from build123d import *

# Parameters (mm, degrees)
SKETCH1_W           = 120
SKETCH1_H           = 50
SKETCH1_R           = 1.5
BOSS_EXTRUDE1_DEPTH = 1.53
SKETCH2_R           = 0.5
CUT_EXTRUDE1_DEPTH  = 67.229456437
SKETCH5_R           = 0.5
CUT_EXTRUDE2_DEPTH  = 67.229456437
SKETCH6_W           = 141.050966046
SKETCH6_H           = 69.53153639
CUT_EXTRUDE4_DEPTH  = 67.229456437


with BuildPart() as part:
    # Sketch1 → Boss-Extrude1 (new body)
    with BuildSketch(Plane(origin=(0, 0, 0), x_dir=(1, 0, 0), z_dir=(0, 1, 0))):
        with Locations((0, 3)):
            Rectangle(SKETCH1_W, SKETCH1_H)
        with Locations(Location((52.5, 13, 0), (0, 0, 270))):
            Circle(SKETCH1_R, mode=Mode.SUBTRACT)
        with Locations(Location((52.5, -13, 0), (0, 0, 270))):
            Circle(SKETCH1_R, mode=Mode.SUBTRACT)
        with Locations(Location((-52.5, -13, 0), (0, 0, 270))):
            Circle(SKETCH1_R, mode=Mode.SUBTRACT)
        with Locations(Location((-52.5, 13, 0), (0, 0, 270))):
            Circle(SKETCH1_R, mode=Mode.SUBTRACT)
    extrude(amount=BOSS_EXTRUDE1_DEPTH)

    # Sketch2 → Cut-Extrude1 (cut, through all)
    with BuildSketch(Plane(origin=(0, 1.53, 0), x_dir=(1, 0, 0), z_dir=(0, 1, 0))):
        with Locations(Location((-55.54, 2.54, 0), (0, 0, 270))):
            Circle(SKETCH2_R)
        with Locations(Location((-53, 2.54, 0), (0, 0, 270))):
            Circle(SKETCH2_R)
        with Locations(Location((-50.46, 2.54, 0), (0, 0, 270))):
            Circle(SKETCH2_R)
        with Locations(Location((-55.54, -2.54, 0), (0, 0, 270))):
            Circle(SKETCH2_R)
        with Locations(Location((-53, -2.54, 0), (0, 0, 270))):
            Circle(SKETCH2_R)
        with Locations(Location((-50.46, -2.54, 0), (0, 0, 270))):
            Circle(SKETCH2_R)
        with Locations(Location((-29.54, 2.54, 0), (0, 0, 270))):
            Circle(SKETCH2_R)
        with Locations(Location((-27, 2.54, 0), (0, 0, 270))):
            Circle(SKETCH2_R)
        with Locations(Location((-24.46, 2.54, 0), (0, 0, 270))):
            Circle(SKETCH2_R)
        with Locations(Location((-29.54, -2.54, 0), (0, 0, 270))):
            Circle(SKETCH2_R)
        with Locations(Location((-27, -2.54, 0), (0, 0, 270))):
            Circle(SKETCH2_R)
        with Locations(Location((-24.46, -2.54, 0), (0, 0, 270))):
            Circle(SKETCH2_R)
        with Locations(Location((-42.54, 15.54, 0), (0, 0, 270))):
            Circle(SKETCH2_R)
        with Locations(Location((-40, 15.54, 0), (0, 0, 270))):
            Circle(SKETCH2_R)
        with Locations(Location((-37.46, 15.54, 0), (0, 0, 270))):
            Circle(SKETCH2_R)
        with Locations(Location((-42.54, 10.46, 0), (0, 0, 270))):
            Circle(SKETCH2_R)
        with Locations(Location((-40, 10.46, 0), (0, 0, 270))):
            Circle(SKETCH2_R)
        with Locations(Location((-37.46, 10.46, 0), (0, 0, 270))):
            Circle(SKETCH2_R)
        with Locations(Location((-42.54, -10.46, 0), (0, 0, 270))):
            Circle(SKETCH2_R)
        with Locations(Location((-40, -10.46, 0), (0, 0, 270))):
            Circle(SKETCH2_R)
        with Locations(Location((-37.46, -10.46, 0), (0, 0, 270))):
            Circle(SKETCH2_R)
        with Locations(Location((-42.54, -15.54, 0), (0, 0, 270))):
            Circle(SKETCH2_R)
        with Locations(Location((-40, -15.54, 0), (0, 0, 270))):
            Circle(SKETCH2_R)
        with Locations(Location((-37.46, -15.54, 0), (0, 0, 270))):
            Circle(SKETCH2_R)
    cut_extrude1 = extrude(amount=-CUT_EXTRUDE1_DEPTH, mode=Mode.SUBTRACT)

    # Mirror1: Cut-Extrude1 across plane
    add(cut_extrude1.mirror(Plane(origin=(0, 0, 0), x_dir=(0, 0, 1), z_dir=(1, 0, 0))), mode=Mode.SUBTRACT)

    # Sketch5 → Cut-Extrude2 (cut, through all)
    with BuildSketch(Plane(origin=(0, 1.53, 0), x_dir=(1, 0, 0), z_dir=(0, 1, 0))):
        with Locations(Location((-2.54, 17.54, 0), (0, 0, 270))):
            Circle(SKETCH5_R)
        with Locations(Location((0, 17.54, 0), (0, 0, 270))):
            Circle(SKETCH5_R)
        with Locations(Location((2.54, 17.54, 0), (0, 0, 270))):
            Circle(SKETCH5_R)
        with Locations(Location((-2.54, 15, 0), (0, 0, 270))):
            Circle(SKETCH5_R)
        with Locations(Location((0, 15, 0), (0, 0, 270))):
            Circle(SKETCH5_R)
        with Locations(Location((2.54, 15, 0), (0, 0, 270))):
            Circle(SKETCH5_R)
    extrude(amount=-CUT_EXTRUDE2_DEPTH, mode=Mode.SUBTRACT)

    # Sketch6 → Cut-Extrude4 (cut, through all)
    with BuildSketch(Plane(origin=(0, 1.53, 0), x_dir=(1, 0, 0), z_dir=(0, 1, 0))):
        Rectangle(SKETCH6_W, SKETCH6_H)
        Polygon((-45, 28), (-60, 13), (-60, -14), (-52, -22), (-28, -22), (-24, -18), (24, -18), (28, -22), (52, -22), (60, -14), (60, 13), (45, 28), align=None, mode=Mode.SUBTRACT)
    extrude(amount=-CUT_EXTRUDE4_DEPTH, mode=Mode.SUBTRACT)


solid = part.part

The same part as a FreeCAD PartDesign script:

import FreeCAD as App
import Part
import Sketcher

V = App.Vector


def add_polygon(sketch, points):
    """Adds a closed chain of lines whose ends are joined by coincident constraints."""
    first, n = sketch.GeometryCount, len(points)
    for a, b in zip(points, points[1:] + points[:1]):
        sketch.addGeometry(Part.LineSegment(App.Vector(*a, 0), App.Vector(*b, 0)), False)
    for i in range(n):
        sketch.addConstraint(Sketcher.Constraint("Coincident", first + i, 2, first + (i + 1) % n, 1))

doc = App.newDocument("Part")
body = doc.addObject("PartDesign::Body", "Body")

sketch1 = body.newObject("Sketcher::SketchObject", "Sketch")
sketch1.AttachmentSupport = (doc.getObject("XZ_Plane"), [""])
sketch1.MapMode = "FlatFace"
add_polygon(sketch1, [(-60, -28), (-60, 22), (60, 22), (60, -28)])
sketch1.addGeometry(Part.Circle(V(-52.5, 13, 0), V(0, 0, 1), 1.5), False)
sketch1.addGeometry(Part.Circle(V(52.5, 13, 0), V(0, 0, 1), 1.5), False)
sketch1.addGeometry(Part.Circle(V(-52.5, -13, 0), V(0, 0, 1), 1.5), False)
sketch1.addGeometry(Part.Circle(V(52.5, -13, 0), V(0, 0, 1), 1.5), False)
sketch1.addConstraint([
    Sketcher.Constraint("Vertical", 0),
    Sketcher.Constraint("Horizontal", 1),
    Sketcher.Constraint("Vertical", 2),
    Sketcher.Constraint("Horizontal", 3),
    Sketcher.Constraint("Equal", 4, 5),
    Sketcher.Constraint("Equal", 5, 6),
    Sketcher.Constraint("Equal", 6, 7),
    Sketcher.Constraint("Symmetric", 5, 3, 6, 3, -1, 1),
    Sketcher.Constraint("Symmetric", 4, 3, 7, 3, -1, 1),
    Sketcher.Constraint("Symmetric", 4, 3, 5, 3, -2),
    Sketcher.Constraint("Diameter", 4, 3.0),
    Sketcher.Constraint("DistanceX", 1, 1, 1, 2, 120.0),
    Sketcher.Constraint("DistanceY", 0, 1, 0, 2, 50.0),
    Sketcher.Constraint("DistanceY", -1, 1, 4, 3, 13.0),
    Sketcher.Constraint("DistanceX", 0, 2, -1, 1, 60.0),
    Sketcher.Constraint("DistanceY", -1, 1, 0, 2, 22.0),
    Sketcher.Constraint("DistanceX", 4, 3, 5, 3, 105.0),
])
pad1 = body.newObject("PartDesign::Pad", "Pad")
pad1.Profile = sketch1
pad1.Length = 1.53
pad1.Reversed = True

sketch2 = body.newObject("Sketcher::SketchObject", "Sketch001")
sketch2.AttachmentSupport = (doc.getObject("XZ_Plane"), [""])
sketch2.MapMode = "FlatFace"
sketch2.AttachmentOffset = App.Placement(V(0, 0, -1.53), App.Rotation())
sketch2.addGeometry([
    Part.Circle(V(-55.5, -2.5, 0), V(0, 0, 1), 0.5),
    Part.Circle(V(-53, -2.5, 0), V(0, 0, 1), 0.5),
    Part.Circle(V(-50.5, -2.5, 0), V(0, 0, 1), 0.5),
    Part.Circle(V(-55.5, 2.5, 0), V(0, 0, 1), 0.5),
    Part.Circle(V(-53, 2.5, 0), V(0, 0, 1), 0.5),
    Part.Circle(V(-50.5, 2.5, 0), V(0, 0, 1), 0.5),
    Part.Circle(V(-29.5, -2.5, 0), V(0, 0, 1), 0.5),
    Part.Circle(V(-27, -2.5, 0), V(0, 0, 1), 0.5),
    Part.Circle(V(-24.5, -2.5, 0), V(0, 0, 1), 0.5),
    Part.Circle(V(-29.5, 2.5, 0), V(0, 0, 1), 0.5),
    Part.Circle(V(-27, 2.5, 0), V(0, 0, 1), 0.5),
    Part.Circle(V(-24.5, 2.5, 0), V(0, 0, 1), 0.5),
    Part.Circle(V(-42.5, -15.5, 0), V(0, 0, 1), 0.5),
    Part.Circle(V(-40, -15.5, 0), V(0, 0, 1), 0.5),
    Part.Circle(V(-37.5, -15.5, 0), V(0, 0, 1), 0.5),
    Part.Circle(V(-42.5, -10.5, 0), V(0, 0, 1), 0.5),
    Part.Circle(V(-40, -10.5, 0), V(0, 0, 1), 0.5),
    Part.Circle(V(-37.5, -10.5, 0), V(0, 0, 1), 0.5),
    Part.Circle(V(-42.5, 10.5, 0), V(0, 0, 1), 0.5),
    Part.Circle(V(-40, 10.5, 0), V(0, 0, 1), 0.5),
    Part.Circle(V(-37.5, 10.5, 0), V(0, 0, 1), 0.5),
    Part.Circle(V(-42.5, 15.5, 0), V(0, 0, 1), 0.5),
    Part.Circle(V(-40, 15.5, 0), V(0, 0, 1), 0.5),
    Part.Circle(V(-37.5, 15.5, 0), V(0, 0, 1), 0.5),
], False)
sketch2.addConstraint([
    Sketcher.Constraint("Equal", 0, 1),
    Sketcher.Constraint("Equal", 1, 2),
    Sketcher.Constraint("Equal", 2, 3),
    Sketcher.Constraint("Equal", 3, 4),
    Sketcher.Constraint("Equal", 4, 5),
    Sketcher.Constraint("Equal", 5, 6),
    Sketcher.Constraint("Equal", 6, 7),
    Sketcher.Constraint("Equal", 7, 8),
    Sketcher.Constraint("Equal", 8, 9),
    Sketcher.Constraint("Equal", 9, 10),
    Sketcher.Constraint("Equal", 10, 11),
    Sketcher.Constraint("Equal", 11, 12),
    Sketcher.Constraint("Equal", 12, 13),
    Sketcher.Constraint("Equal", 13, 14),
    Sketcher.Constraint("Equal", 14, 15),
    Sketcher.Constraint("Equal", 15, 16),
    Sketcher.Constraint("Equal", 16, 17),
    Sketcher.Constraint("Equal", 17, 18),
    Sketcher.Constraint("Equal", 18, 19),
    Sketcher.Constraint("Equal", 19, 20),
    Sketcher.Constraint("Equal", 20, 21),
    Sketcher.Constraint("Equal", 21, 22),
    Sketcher.Constraint("Equal", 22, 23),
    Sketcher.Constraint("Symmetric", 0, 3, 3, 3, -1),
    Sketcher.Constraint("Symmetric", 1, 3, 4, 3, -1),
    Sketcher.Constraint("Symmetric", 2, 3, 5, 3, -1),
    Sketcher.Constraint("Symmetric", 6, 3, 9, 3, -1),
    Sketcher.Constraint("Symmetric", 7, 3, 10, 3, -1),
    Sketcher.Constraint("Symmetric", 8, 3, 11, 3, -1),
    Sketcher.Constraint("Symmetric", 15, 3, 18, 3, -1),
    Sketcher.Constraint("Symmetric", 16, 3, 19, 3, -1),
    Sketcher.Constraint("Symmetric", 17, 3, 20, 3, -1),
    Sketcher.Constraint("Symmetric", 12, 3, 21, 3, -1),
    Sketcher.Constraint("Symmetric", 13, 3, 22, 3, -1),
    Sketcher.Constraint("Symmetric", 14, 3, 23, 3, -1),
    Sketcher.Constraint("Horizontal", 0, 3, 1, 3),
    Sketcher.Constraint("Horizontal", 1, 3, 2, 3),
    Sketcher.Constraint("Horizontal", 2, 3, 6, 3),
    Sketcher.Constraint("Horizontal", 6, 3, 7, 3),
    Sketcher.Constraint("Horizontal", 7, 3, 8, 3),
    Sketcher.Constraint("Horizontal", 12, 3, 13, 3),
    Sketcher.Constraint("Horizontal", 13, 3, 14, 3),
    Sketcher.Constraint("Horizontal", 15, 3, 16, 3),
    Sketcher.Constraint("Horizontal", 16, 3, 17, 3),
    Sketcher.Constraint("Vertical", 12, 3, 15, 3),
    Sketcher.Constraint("Vertical", 13, 3, 16, 3),
    Sketcher.Constraint("Vertical", 14, 3, 17, 3),
    Sketcher.Constraint("Diameter", 0, 1.0),
    Sketcher.Constraint("DistanceX", 1, 3, -1, 1, 53.0),
    Sketcher.Constraint("DistanceX", 7, 3, -1, 1, 27.0),
    Sketcher.Constraint("DistanceX", 13, 3, -1, 1, 40.0),
    Sketcher.Constraint("DistanceX", 0, 3, 6, 3, 26.0),
    Sketcher.Constraint("DistanceX", 2, 3, 8, 3, 26.0),
    Sketcher.Constraint("DistanceY", 12, 3, 2, 3, 13.0),
    Sketcher.Constraint("DistanceX", 0, 3, 12, 3, 13.0),
    Sketcher.Constraint("DistanceX", 2, 3, 14, 3, 13.0),
    Sketcher.Constraint("DistanceY", 2, 3, 18, 3, 13.0),
    Sketcher.Constraint("DistanceX", 0, 3, -1, 1, 55.54),
    Sketcher.Constraint("DistanceY", 0, 3, -1, 1, 2.54),
    Sketcher.Constraint("DistanceX", 2, 3, -1, 1, 50.46),
])
pocket1 = body.newObject("PartDesign::Pocket", "Pocket")
pocket1.Profile = sketch2
pocket1.Type = "ThroughAll"
pocket1.Reversed = True
doc.recompute()

mirrored = body.newObject("PartDesign::Mirrored", "Mirrored")
mirrored.Originals = [pocket1]
mirrored.MirrorPlane = (doc.getObject("YZ_Plane"), [""])
body.Tip = mirrored

sketch3 = body.newObject("Sketcher::SketchObject", "Sketch002")
sketch3.AttachmentSupport = (doc.getObject("XZ_Plane"), [""])
sketch3.MapMode = "FlatFace"
sketch3.AttachmentOffset = App.Placement(V(0, 0, -1.53), App.Rotation())
sketch3.addGeometry([
    Part.Circle(V(-2.5, -17.5, 0), V(0, 0, 1), 0.5),
    Part.Circle(V(0, -17.5, 0), V(0, 0, 1), 0.5),
    Part.Circle(V(2.5, -17.5, 0), V(0, 0, 1), 0.5),
    Part.Circle(V(-2.5, -15, 0), V(0, 0, 1), 0.5),
    Part.Circle(V(0, -15, 0), V(0, 0, 1), 0.5),
    Part.Circle(V(2.5, -15, 0), V(0, 0, 1), 0.5),
], False)
sketch3.addConstraint([
    Sketcher.Constraint("Equal", 0, 1),
    Sketcher.Constraint("Equal", 1, 2),
    Sketcher.Constraint("Equal", 2, 3),
    Sketcher.Constraint("Equal", 3, 4),
    Sketcher.Constraint("Equal", 4, 5),
    Sketcher.Constraint("Symmetric", 0, 3, 2, 3, -2),
    Sketcher.Constraint("Symmetric", 3, 3, 5, 3, -2),
    Sketcher.Constraint("PointOnObject", 1, 3, -2),
    Sketcher.Constraint("PointOnObject", 4, 3, -2),
    Sketcher.Constraint("Horizontal", 0, 3, 1, 3),
    Sketcher.Constraint("Horizontal", 3, 3, 4, 3),
    Sketcher.Constraint("Vertical", 0, 3, 3, 3),
    Sketcher.Constraint("Diameter", 0, 1.0),
    Sketcher.Constraint("DistanceY", 3, 3, -1, 1, 15.0),
    Sketcher.Constraint("DistanceX", 0, 3, -1, 1, 2.54),
    Sketcher.Constraint("DistanceY", 0, 3, -1, 1, 17.54),
])
pocket2 = body.newObject("PartDesign::Pocket", "Pocket001")
pocket2.Profile = sketch3
pocket2.Type = "ThroughAll"
pocket2.Reversed = True

sketch4 = body.newObject("Sketcher::SketchObject", "Sketch003")
sketch4.AttachmentSupport = (doc.getObject("XZ_Plane"), [""])
sketch4.MapMode = "FlatFace"
sketch4.AttachmentOffset = App.Placement(V(0, 0, -1.53), App.Rotation())
add_polygon(sketch4, [(-71, -35), (-71, 35), (71, 35), (71, -35)])
add_polygon(sketch4, [(-60, -13), (-45, -28), (45, -28), (60, -13), (60, 14), (52, 22), (28, 22), (24, 18), (-24, 18), (-28, 22), (-52, 22), (-60, 14)])
sketch4.addConstraint([
    Sketcher.Constraint("Vertical", 0),
    Sketcher.Constraint("Horizontal", 1),
    Sketcher.Constraint("Vertical", 2),
    Sketcher.Constraint("Horizontal", 3),
    Sketcher.Constraint("Horizontal", 5),
    Sketcher.Constraint("Vertical", 7),
    Sketcher.Constraint("Horizontal", 9),
    Sketcher.Constraint("Horizontal", 11),
    Sketcher.Constraint("Horizontal", 13),
    Sketcher.Constraint("Vertical", 15),
    Sketcher.Constraint("Symmetric", 0, 2, 2, 2, -1, 1),
    Sketcher.Constraint("Symmetric", 9, 2, 12, 2, -2),
    Sketcher.Constraint("Symmetric", 7, 2, 14, 2, -2),
    Sketcher.Constraint("Perpendicular", 4, 6),
    Sketcher.Constraint("Perpendicular", 6, 8),
    Sketcher.Constraint("Perpendicular", 8, 10),
    Sketcher.Constraint("Perpendicular", 10, 12),
    Sketcher.Constraint("Perpendicular", 12, 14),
    Sketcher.Constraint("Horizontal", 6, 2, 15, 2),
    Sketcher.Constraint("Equal", 9, 13),
    Sketcher.Constraint("DistanceX", 5, 1, 5, 2, 90.0),
    Sketcher.Constraint("DistanceX", 9, 2, 9, 1, 24.0),
    Sketcher.Constraint("DistanceX", 11, 2, 11, 1, 48.0),
    Sketcher.Constraint("DistanceY", 7, 1, 7, 2, 27.0),
    Sketcher.Constraint("DistanceY", 4, 2, -1, 1, 28.0),
    Sketcher.Constraint("DistanceX", -1, 1, 6, 2, 60.0),
    Sketcher.Constraint("DistanceX", -1, 1, 8, 2, 52.0),
    Sketcher.Constraint("DistanceX", 1, 1, 1, 2, 141.050966),
    Sketcher.Constraint("DistanceY", 0, 1, 0, 2, 69.531536),
])
pocket3 = body.newObject("PartDesign::Pocket", "Pocket002")
pocket3.Profile = sketch4
pocket3.Type = "ThroughAll"
pocket3.Reversed = True

doc.recompute()
